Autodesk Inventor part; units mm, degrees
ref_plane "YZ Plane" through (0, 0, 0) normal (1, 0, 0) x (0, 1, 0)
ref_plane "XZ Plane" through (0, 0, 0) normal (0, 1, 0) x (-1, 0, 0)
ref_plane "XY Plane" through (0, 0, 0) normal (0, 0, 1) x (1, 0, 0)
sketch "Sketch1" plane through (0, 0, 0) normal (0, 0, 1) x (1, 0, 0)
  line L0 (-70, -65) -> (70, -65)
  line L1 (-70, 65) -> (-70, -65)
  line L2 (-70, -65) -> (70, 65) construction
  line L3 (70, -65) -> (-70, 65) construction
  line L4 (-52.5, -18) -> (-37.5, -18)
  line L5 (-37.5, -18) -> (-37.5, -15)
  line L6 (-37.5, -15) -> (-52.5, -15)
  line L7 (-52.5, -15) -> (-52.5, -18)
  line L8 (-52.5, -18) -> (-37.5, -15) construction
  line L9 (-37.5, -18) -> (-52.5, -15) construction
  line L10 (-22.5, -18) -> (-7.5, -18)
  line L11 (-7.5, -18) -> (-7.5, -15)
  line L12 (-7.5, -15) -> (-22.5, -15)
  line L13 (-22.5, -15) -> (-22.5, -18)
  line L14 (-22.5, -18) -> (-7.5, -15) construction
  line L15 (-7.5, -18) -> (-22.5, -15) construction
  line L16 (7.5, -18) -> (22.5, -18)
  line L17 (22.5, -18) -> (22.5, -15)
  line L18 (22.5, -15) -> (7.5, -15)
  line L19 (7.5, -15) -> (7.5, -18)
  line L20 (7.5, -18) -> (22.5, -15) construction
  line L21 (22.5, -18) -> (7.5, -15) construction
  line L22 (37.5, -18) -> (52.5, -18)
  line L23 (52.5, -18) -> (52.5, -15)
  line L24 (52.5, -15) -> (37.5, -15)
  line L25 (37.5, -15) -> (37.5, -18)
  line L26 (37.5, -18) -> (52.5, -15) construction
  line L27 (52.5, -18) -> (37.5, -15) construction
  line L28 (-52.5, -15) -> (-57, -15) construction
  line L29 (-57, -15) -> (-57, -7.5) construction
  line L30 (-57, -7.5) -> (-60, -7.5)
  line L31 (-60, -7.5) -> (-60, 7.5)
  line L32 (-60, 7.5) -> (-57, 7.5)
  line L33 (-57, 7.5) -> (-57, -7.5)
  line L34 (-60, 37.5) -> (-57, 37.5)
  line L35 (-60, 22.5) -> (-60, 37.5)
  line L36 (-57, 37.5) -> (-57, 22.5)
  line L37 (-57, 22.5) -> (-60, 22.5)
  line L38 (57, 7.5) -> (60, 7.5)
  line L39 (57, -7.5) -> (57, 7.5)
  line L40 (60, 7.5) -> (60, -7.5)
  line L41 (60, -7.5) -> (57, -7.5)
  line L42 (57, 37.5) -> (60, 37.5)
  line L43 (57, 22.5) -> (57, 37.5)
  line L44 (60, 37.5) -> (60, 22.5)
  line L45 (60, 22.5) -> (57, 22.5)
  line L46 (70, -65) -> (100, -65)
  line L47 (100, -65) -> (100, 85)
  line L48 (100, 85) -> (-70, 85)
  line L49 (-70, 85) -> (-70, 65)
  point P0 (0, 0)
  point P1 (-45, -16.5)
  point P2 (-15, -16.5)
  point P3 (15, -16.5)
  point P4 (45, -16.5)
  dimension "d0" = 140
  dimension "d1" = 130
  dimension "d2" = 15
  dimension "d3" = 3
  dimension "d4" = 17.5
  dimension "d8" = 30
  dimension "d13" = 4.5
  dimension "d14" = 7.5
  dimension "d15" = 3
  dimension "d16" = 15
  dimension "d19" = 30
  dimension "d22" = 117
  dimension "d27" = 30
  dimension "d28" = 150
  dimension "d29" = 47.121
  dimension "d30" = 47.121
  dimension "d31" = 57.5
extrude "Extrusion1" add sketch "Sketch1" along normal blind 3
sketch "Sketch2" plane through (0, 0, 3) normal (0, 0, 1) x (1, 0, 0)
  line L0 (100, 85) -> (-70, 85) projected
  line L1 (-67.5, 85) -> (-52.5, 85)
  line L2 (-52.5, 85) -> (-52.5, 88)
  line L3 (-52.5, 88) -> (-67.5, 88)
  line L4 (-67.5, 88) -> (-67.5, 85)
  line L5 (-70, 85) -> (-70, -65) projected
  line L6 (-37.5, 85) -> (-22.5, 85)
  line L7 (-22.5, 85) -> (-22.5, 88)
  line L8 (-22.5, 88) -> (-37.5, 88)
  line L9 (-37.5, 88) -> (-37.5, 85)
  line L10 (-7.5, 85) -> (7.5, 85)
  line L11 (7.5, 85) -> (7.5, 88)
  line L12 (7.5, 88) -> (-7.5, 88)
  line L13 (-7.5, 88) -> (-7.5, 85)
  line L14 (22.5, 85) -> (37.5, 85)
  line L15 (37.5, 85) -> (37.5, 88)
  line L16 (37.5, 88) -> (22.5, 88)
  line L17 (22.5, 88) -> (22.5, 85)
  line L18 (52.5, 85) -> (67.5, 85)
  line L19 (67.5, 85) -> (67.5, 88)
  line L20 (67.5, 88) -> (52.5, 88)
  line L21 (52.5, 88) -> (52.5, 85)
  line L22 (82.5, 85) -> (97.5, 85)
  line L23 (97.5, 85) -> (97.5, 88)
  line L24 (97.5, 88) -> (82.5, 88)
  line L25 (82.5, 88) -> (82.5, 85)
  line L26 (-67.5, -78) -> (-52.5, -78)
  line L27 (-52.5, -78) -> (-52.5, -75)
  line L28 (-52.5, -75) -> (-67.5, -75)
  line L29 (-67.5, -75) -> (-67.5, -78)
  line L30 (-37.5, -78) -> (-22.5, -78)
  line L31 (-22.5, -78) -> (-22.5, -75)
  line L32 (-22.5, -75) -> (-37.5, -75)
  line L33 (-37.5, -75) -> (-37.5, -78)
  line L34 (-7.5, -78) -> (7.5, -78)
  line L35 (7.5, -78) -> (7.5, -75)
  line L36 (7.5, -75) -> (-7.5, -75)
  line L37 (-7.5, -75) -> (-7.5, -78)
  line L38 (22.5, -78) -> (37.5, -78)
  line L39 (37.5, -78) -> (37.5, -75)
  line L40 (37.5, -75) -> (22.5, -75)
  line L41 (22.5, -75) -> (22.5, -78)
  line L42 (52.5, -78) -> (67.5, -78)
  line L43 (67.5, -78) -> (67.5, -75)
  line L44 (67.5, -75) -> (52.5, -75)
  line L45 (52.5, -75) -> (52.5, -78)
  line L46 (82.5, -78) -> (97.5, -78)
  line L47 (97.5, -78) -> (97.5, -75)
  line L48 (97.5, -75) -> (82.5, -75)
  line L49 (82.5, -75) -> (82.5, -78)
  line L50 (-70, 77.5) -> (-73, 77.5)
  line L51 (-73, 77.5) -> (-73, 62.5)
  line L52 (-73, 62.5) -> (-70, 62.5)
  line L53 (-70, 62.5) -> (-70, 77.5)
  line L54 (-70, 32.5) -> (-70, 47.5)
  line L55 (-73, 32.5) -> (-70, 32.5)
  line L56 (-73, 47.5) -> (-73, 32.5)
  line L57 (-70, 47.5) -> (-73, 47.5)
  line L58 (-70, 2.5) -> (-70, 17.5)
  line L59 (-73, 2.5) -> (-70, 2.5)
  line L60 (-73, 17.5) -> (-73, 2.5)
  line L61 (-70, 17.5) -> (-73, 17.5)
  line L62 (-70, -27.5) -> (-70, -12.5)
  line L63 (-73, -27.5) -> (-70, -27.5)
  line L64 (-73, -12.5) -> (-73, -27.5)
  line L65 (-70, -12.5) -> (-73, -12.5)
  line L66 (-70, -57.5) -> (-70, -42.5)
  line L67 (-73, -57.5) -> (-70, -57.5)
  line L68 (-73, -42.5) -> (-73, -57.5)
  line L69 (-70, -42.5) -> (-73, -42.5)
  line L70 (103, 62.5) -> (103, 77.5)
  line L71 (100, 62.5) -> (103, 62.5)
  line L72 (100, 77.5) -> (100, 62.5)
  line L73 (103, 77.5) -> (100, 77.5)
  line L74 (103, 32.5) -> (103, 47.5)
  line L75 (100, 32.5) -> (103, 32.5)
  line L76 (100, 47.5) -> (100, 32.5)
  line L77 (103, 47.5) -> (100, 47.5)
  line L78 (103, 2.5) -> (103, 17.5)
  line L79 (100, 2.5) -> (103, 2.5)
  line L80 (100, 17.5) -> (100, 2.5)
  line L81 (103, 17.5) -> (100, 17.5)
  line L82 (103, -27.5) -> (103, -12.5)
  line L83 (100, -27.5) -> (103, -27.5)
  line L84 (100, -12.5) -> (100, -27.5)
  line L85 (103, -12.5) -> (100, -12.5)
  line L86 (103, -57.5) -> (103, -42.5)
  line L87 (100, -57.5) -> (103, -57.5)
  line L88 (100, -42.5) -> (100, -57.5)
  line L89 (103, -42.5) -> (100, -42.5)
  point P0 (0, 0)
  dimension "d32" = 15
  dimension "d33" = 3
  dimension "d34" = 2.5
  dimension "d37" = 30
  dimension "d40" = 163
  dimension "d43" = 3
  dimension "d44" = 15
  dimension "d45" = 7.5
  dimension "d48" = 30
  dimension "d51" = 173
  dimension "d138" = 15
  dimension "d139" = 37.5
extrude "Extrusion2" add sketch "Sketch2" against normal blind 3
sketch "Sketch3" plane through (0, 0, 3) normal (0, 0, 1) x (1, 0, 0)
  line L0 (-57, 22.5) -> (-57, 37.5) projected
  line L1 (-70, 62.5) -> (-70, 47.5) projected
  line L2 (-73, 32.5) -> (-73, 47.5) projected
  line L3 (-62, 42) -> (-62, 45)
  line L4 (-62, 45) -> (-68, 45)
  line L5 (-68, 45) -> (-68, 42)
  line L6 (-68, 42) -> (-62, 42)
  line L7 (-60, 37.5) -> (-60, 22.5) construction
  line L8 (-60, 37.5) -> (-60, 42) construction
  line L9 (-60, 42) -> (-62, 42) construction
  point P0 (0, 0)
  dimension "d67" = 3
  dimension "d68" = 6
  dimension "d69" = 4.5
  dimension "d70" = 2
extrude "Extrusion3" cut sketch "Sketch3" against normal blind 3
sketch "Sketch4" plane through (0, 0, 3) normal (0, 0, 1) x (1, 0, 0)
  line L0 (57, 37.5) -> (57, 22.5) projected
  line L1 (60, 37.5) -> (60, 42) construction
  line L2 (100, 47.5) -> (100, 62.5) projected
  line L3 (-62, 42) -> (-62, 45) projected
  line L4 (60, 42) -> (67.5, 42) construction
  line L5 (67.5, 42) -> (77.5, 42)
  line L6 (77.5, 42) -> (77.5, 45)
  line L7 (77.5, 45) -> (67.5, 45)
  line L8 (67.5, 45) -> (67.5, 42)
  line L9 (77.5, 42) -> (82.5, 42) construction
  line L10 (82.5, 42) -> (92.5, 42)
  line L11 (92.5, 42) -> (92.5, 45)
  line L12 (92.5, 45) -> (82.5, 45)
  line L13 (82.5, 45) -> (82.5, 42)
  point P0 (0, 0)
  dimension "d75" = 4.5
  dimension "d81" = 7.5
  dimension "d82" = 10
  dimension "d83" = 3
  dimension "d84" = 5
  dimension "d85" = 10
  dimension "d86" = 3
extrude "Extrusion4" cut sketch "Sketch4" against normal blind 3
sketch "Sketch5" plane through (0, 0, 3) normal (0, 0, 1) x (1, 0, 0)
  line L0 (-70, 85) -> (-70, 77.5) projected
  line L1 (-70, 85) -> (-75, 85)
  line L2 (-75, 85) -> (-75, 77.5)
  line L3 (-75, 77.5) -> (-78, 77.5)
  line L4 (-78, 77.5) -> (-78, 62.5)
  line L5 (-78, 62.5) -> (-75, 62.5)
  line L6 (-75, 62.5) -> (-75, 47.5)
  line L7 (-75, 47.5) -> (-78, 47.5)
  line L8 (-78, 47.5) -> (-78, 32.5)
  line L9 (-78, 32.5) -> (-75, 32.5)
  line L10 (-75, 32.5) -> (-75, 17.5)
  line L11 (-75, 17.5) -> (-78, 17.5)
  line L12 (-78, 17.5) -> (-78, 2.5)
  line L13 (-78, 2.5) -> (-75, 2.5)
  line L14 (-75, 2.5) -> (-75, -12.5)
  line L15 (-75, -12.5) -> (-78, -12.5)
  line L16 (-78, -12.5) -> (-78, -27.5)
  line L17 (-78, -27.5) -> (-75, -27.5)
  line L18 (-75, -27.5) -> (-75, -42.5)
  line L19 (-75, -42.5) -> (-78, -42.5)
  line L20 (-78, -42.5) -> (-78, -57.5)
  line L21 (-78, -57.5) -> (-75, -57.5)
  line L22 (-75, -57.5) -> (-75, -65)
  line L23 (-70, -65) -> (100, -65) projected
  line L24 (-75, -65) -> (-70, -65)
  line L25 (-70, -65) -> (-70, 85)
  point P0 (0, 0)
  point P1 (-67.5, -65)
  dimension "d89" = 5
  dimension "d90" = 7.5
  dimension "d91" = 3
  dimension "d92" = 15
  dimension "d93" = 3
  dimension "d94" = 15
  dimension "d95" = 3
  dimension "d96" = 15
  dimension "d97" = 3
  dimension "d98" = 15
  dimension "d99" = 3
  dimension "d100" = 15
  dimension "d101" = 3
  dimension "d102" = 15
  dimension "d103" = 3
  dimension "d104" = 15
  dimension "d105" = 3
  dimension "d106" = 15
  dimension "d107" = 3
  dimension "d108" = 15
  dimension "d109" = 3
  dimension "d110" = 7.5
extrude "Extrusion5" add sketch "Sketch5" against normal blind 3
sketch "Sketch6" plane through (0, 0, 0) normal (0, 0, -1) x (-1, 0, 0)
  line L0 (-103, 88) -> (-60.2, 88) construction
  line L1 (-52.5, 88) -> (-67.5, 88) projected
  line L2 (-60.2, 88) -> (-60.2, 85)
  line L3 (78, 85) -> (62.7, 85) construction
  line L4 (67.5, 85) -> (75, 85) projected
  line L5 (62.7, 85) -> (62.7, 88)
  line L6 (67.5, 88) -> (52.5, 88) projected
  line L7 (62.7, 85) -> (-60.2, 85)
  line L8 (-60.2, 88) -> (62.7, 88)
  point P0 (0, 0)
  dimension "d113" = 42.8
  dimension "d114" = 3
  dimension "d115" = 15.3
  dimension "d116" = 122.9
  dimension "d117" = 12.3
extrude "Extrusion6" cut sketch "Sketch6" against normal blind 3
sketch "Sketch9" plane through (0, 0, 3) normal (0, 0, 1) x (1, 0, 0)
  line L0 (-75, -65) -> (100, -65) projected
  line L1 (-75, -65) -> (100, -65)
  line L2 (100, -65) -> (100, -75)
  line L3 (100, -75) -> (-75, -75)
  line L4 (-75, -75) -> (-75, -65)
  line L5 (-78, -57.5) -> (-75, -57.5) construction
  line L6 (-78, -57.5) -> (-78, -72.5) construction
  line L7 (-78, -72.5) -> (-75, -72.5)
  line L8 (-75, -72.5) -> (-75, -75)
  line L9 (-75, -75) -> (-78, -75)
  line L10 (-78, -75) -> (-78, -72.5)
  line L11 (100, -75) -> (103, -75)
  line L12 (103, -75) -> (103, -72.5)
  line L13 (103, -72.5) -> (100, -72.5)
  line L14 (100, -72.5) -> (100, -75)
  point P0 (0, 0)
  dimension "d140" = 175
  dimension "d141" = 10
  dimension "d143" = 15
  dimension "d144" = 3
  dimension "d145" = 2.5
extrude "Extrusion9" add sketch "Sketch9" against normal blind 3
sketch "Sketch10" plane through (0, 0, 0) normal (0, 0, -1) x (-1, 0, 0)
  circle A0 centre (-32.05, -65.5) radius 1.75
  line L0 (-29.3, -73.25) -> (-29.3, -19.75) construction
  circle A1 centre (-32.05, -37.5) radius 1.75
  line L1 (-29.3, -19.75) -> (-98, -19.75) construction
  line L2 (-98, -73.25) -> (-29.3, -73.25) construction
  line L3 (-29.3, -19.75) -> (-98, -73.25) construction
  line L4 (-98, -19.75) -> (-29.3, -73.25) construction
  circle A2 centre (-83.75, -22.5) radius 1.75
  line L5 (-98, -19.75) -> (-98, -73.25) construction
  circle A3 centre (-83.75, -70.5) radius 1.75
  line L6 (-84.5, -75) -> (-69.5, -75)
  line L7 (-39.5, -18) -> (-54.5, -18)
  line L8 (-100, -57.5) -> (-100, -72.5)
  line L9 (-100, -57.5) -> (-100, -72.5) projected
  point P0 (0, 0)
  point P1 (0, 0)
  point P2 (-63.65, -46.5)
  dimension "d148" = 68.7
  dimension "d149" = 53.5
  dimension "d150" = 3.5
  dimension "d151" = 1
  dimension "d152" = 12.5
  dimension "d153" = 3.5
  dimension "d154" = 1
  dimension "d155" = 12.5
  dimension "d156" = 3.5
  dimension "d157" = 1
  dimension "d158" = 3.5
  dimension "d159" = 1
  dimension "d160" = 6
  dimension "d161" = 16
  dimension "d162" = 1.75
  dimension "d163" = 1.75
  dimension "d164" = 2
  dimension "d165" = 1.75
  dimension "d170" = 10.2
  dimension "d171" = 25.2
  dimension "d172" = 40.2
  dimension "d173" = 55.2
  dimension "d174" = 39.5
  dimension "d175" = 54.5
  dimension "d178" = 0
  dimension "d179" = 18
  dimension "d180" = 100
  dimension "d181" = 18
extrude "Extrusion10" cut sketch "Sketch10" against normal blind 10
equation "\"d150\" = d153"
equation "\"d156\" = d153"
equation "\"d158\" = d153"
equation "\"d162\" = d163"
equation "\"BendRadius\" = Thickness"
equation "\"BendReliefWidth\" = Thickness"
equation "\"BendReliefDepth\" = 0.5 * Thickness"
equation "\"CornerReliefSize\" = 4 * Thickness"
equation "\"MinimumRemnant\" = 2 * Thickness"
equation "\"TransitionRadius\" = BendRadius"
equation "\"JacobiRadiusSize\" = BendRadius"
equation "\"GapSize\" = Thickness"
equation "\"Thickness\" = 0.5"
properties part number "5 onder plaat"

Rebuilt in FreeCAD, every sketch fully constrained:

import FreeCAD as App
import Part
import Sketcher
from FreeCAD import Vector


def add_polygon(sketch, points):
    """Adds a closed chain of lines whose ends are joined by coincident constraints."""
    first, n = sketch.GeometryCount, len(points)
    for a, b in zip(points, points[1:] + points[:1]):
        sketch.addGeometry(Part.LineSegment(App.Vector(*a, 0), App.Vector(*b, 0)), False)
    for i in range(n):
        sketch.addConstraint(Sketcher.Constraint("Coincident", first + i, 2, first + (i + 1) % n, 1))

doc = App.newDocument("Part")
params = doc.addObject("Spreadsheet::Sheet", "Params")
for row, (alias, value) in enumerate([
    ("sketch1_width", "15 mm"),
    ("sketch1_width2", "3 mm"),
    ("sketch1_height", "150 mm"),
    ("sketch1_width3", "170 mm"),
    ("pad1_length", "3 mm"),
    ("sketch2_width", "3 mm"),
    ("sketch2_width2", "15 mm"),
    ("pad2_length", "3 mm"),
    ("sketch3_width", "6 mm"),
    ("sketch3_height", "3 mm"),
    ("pocket1_length", "3 mm"),
    ("sketch4_width", "10 mm"),
    ("sketch4_height", "3 mm"),
    ("pocket2_length", "3 mm"),
    ("sketch5_width", "5 mm"),
    ("sketch5_width2", "3 mm"),
    ("sketch5_height", "15 mm"),
    ("sketch5_height2", "7.5 mm"),
    ("pad3_length", "3 mm"),
    ("sketch6_height", "3 mm"),
    ("sketch6_width", "122.9 mm"),
    ("pocket3_length", "3 mm"),
    ("sketch7_width", "175 mm"),
    ("sketch7_width2", "3 mm"),
    ("sketch7_height", "2.5 mm"),
    ("pad4_length", "3 mm"),
    ("sketch8_diameter", "3.5 mm"),
    ("pocket4_length", "10 mm"),
], start=1):
    params.set(f"A{row}", alias)
    params.set(f"B{row}", "=" + value)
    params.setAlias(f"B{row}", alias)

body = doc.addObject("PartDesign::Body", "Body")
body.AllowCompound = True

# Sketch on XY plane
sketch1 = body.newObject("Sketcher::SketchObject", "Sketch")
sketch1.AttachmentSupport = (doc.getObject("XY_Plane"), [""])
sketch1.MapMode = "FlatFace"
add_polygon(sketch1, [(-70, 85), (-70, -65), (100, -65), (100, 85)])  # lines 0-3
add_polygon(sketch1, [(-37.5, -18), (-52.5, -18), (-52.5, -15), (-37.5, -15)])  # lines 4-7
add_polygon(sketch1, [(-57, 7.5), (-57, -7.5), (-60, -7.5), (-60, 7.5)])  # lines 8-11
add_polygon(sketch1, [(-7.5, -18), (-22.5, -18), (-22.5, -15), (-7.5, -15)])  # lines 12-15
add_polygon(sketch1, [(22.5, -18), (7.5, -18), (7.5, -15), (22.5, -15)])  # lines 16-19
add_polygon(sketch1, [(52.5, -18), (37.5, -18), (37.5, -15), (52.5, -15)])  # lines 20-23
add_polygon(sketch1, [(57, -7.5), (57, 7.5), (60, 7.5), (60, -7.5)])  # lines 24-27
add_polygon(sketch1, [(-60, 22.5), (-60, 37.5), (-57, 37.5), (-57, 22.5)])  # lines 28-31
add_polygon(sketch1, [(57, 22.5), (57, 37.5), (60, 37.5), (60, 22.5)])  # lines 32-35
sketch1.addConstraint([
    Sketcher.Constraint("Vertical", 0),
    Sketcher.Constraint("Horizontal", 1),
    Sketcher.Constraint("Vertical", 2),
    Sketcher.Constraint("Horizontal", 3),
    Sketcher.Constraint("Horizontal", 4),
    Sketcher.Constraint("Vertical", 5),
    Sketcher.Constraint("Horizontal", 6),
    Sketcher.Constraint("Vertical", 7),
    Sketcher.Constraint("Vertical", 8),
    Sketcher.Constraint("Horizontal", 9),
    Sketcher.Constraint("Vertical", 10),
    Sketcher.Constraint("Horizontal", 11),
    Sketcher.Constraint("Horizontal", 12),
    Sketcher.Constraint("Vertical", 13),
    Sketcher.Constraint("Horizontal", 14),
    Sketcher.Constraint("Vertical", 15),
    Sketcher.Constraint("Horizontal", 16),
    Sketcher.Constraint("Vertical", 17),
    Sketcher.Constraint("Horizontal", 18),
    Sketcher.Constraint("Vertical", 19),
    Sketcher.Constraint("Horizontal", 20),
    Sketcher.Constraint("Vertical", 21),
    Sketcher.Constraint("Horizontal", 22),
    Sketcher.Constraint("Vertical", 23),
    Sketcher.Constraint("Vertical", 24),
    Sketcher.Constraint("Horizontal", 25),
    Sketcher.Constraint("Vertical", 26),
    Sketcher.Constraint("Horizontal", 27),
    Sketcher.Constraint("Vertical", 28),
    Sketcher.Constraint("Horizontal", 29),
    Sketcher.Constraint("Vertical", 30),
    Sketcher.Constraint("Horizontal", 31),
    Sketcher.Constraint("Vertical", 32),
    Sketcher.Constraint("Horizontal", 33),
    Sketcher.Constraint("Vertical", 34),
    Sketcher.Constraint("Horizontal", 35),
    Sketcher.Constraint("Symmetric", 8, 2, 24, 2, -1, 1),
    Sketcher.Constraint("Symmetric", 10, 2, 26, 2, -1, 1),
    Sketcher.Constraint("Symmetric", 15, 2, 16, 2, -2),
    Sketcher.Constraint("Symmetric", 13, 2, 18, 2, -2),
    Sketcher.Constraint("Symmetric", 7, 2, 20, 2, -2),
    Sketcher.Constraint("Symmetric", 5, 2, 22, 2, -2),
    Sketcher.Constraint("Symmetric", 29, 2, 32, 2, -2),
    Sketcher.Constraint("Symmetric", 31, 2, 34, 2, -2),
    Sketcher.Constraint("Horizontal", 7, 2, 12, 2),
    Sketcher.Constraint("Horizontal", 6, 2, 13, 2),
    Sketcher.Constraint("Horizontal", 11, 2, 24, 2),
    Sketcher.Constraint("Vertical", 10, 2, 28, 2),
    Sketcher.Constraint("Vertical", 11, 2, 29, 2),
    Sketcher.Constraint("Equal", 6, 12),
    Sketcher.Constraint("Equal", 35, 5),
    Sketcher.Constraint("Equal", 22, 8),
    Sketcher.Constraint("Equal", 26, 28),
    Sketcher.Constraint("DistanceX", 4, 2, 4, 1, 15.0),
    Sketcher.Constraint("DistanceX", 9, 2, 9, 1, 3.0),
    Sketcher.Constraint("DistanceY", 0, 2, 0, 1, 150.0),
    Sketcher.Constraint("DistanceY", 5, 2, -1, 1, 15.0),
    Sketcher.Constraint("DistanceX", 7, 2, 12, 2, 15.0),
    Sketcher.Constraint("DistanceX", 15, 2, 16, 2, 15.0),
    Sketcher.Constraint("DistanceY", 10, 2, 28, 2, 30.0),
    Sketcher.Constraint("DistanceX", 3, 2, 28, 2, 10.0),
    Sketcher.Constraint("DistanceX", 0, 2, 4, 2, 17.5),
    Sketcher.Constraint("DistanceY", 0, 2, 8, 2, 57.5),
    Sketcher.Constraint("DistanceX", 1, 1, 1, 2, 170.0),
])
sketch1.setExpression("Constraints[89]", "Params.sketch1_width")
sketch1.setExpression("Constraints[90]", "Params.sketch1_width2")
sketch1.setExpression("Constraints[91]", "Params.sketch1_height")
sketch1.setExpression("Constraints[99]", "Params.sketch1_width3")
pad1 = body.newObject("PartDesign::Pad", "Pad")
pad1.Profile = sketch1
pad1.setExpression("Length", "Params.pad1_length")

# Sketch on XY plane
sketch2 = body.newObject("Sketcher::SketchObject", "Sketch001")
sketch2.AttachmentSupport = (doc.getObject("XY_Plane"), [""])
sketch2.MapMode = "FlatFace"
sketch2.AttachmentOffset = App.Placement(Vector(0, 0, 3), App.Rotation())
add_polygon(sketch2, [(-70, -57.5), (-70, -42.5), (-73, -42.5), (-73, -57.5)])  # lines 0-3
add_polygon(sketch2, [(-70, -27.5), (-70, -12.5), (-73, -12.5), (-73, -27.5)])  # lines 4-7
add_polygon(sketch2, [(-70, 2.5), (-70, 17.5), (-73, 17.5), (-73, 2.5)])  # lines 8-11
add_polygon(sketch2, [(-70, 32.5), (-70, 47.5), (-73, 47.5), (-73, 32.5)])  # lines 12-15
add_polygon(sketch2, [(-70, 62.5), (-70, 77.5), (-73, 77.5), (-73, 62.5)])  # lines 16-19
add_polygon(sketch2, [(-67.5, 85), (-52.5, 85), (-52.5, 88), (-67.5, 88)])  # lines 20-23
add_polygon(sketch2, [(-37.5, 85), (-22.5, 85), (-22.5, 88), (-37.5, 88)])  # lines 24-27
add_polygon(sketch2, [(-7.5, 85), (7.5, 85), (7.5, 88), (-7.5, 88)])  # lines 28-31
add_polygon(sketch2, [(22.5, 85), (37.5, 85), (37.5, 88), (22.5, 88)])  # lines 32-35
add_polygon(sketch2, [(52.5, 85), (67.5, 85), (67.5, 88), (52.5, 88)])  # lines 36-39
add_polygon(sketch2, [(82.5, 85), (97.5, 85), (97.5, 88), (82.5, 88)])  # lines 40-43
add_polygon(sketch2, [(-67.5, -75), (-67.5, -78), (-52.5, -78), (-52.5, -75)])  # lines 44-47
add_polygon(sketch2, [(-37.5, -75), (-37.5, -78), (-22.5, -78), (-22.5, -75)])  # lines 48-51
add_polygon(sketch2, [(-7.5, -75), (-7.5, -78), (7.5, -78), (7.5, -75)])  # lines 52-55
add_polygon(sketch2, [(22.5, -75), (22.5, -78), (37.5, -78), (37.5, -75)])  # lines 56-59
add_polygon(sketch2, [(52.5, -75), (52.5, -78), (67.5, -78), (67.5, -75)])  # lines 60-63
add_polygon(sketch2, [(82.5, -75), (82.5, -78), (97.5, -78), (97.5, -75)])  # lines 64-67
add_polygon(sketch2, [(100, 62.5), (103, 62.5), (103, 77.5), (100, 77.5)])  # lines 68-71
add_polygon(sketch2, [(100, 32.5), (103, 32.5), (103, 47.5), (100, 47.5)])  # lines 72-75
add_polygon(sketch2, [(100, 2.5), (103, 2.5), (103, 17.5), (100, 17.5)])  # lines 76-79
add_polygon(sketch2, [(100, -27.5), (103, -27.5), (103, -12.5), (100, -12.5)])  # lines 80-83
add_polygon(sketch2, [(100, -57.5), (103, -57.5), (103, -42.5), (100, -42.5)])  # lines 84-87
sketch2.addConstraint([
    Sketcher.Constraint("Vertical", 0),
    Sketcher.Constraint("Horizontal", 1),
    Sketcher.Constraint("Vertical", 2),
    Sketcher.Constraint("Horizontal", 3),
    Sketcher.Constraint("Vertical", 4),
    Sketcher.Constraint("Horizontal", 5),
    Sketcher.Constraint("Vertical", 6),
    Sketcher.Constraint("Horizontal", 7),
    Sketcher.Constraint("Vertical", 8),
    Sketcher.Constraint("Horizontal", 9),
    Sketcher.Constraint("Vertical", 10),
    Sketcher.Constraint("Horizontal", 11),
    Sketcher.Constraint("Vertical", 12),
    Sketcher.Constraint("Horizontal", 13),
    Sketcher.Constraint("Vertical", 14),
    Sketcher.Constraint("Horizontal", 15),
    Sketcher.Constraint("Vertical", 16),
    Sketcher.Constraint("Horizontal", 17),
    Sketcher.Constraint("Vertical", 18),
    Sketcher.Constraint("Horizontal", 19),
    Sketcher.Constraint("Horizontal", 20),
    Sketcher.Constraint("Vertical", 21),
    Sketcher.Constraint("Horizontal", 22),
    Sketcher.Constraint("Vertical", 23),
    Sketcher.Constraint("Horizontal", 24),
    Sketcher.Constraint("Vertical", 25),
    Sketcher.Constraint("Horizontal", 26),
    Sketcher.Constraint("Vertical", 27),
    Sketcher.Constraint("Horizontal", 28),
    Sketcher.Constraint("Vertical", 29),
    Sketcher.Constraint("Horizontal", 30),
    Sketcher.Constraint("Vertical", 31),
    Sketcher.Constraint("Horizontal", 32),
    Sketcher.Constraint("Vertical", 33),
    Sketcher.Constraint("Horizontal", 34),
    Sketcher.Constraint("Vertical", 35),
    Sketcher.Constraint("Horizontal", 36),
    Sketcher.Constraint("Vertical", 37),
    Sketcher.Constraint("Horizontal", 38),
    Sketcher.Constraint("Vertical", 39),
    Sketcher.Constraint("Horizontal", 40),
    Sketcher.Constraint("Vertical", 41),
    Sketcher.Constraint("Horizontal", 42),
    Sketcher.Constraint("Vertical", 43),
    Sketcher.Constraint("Vertical", 44),
    Sketcher.Constraint("Horizontal", 45),
    Sketcher.Constraint("Vertical", 46),
    Sketcher.Constraint("Horizontal", 47),
    Sketcher.Constraint("Vertical", 48),
    Sketcher.Constraint("Horizontal", 49),
    Sketcher.Constraint("Vertical", 50),
    Sketcher.Constraint("Horizontal", 51),
    Sketcher.Constraint("Vertical", 52),
    Sketcher.Constraint("Horizontal", 53),
    Sketcher.Constraint("Vertical", 54),
    Sketcher.Constraint("Horizontal", 55),
    Sketcher.Constraint("Vertical", 56),
    Sketcher.Constraint("Horizontal", 57),
    Sketcher.Constraint("Vertical", 58),
    Sketcher.Constraint("Horizontal", 59),
    Sketcher.Constraint("Vertical", 60),
    Sketcher.Constraint("Horizontal", 61),
    Sketcher.Constraint("Vertical", 62),
    Sketcher.Constraint("Horizontal", 63),
    Sketcher.Constraint("Vertical", 64),
    Sketcher.Constraint("Horizontal", 65),
    Sketcher.Constraint("Vertical", 66),
    Sketcher.Constraint("Horizontal", 67),
    Sketcher.Constraint("Horizontal", 68),
    Sketcher.Constraint("Vertical", 69),
    Sketcher.Constraint("Horizontal", 70),
    Sketcher.Constraint("Vertical", 71),
    Sketcher.Constraint("Horizontal", 72),
    Sketcher.Constraint("Vertical", 73),
    Sketcher.Constraint("Horizontal", 74),
    Sketcher.Constraint("Vertical", 75),
    Sketcher.Constraint("Horizontal", 76),
    Sketcher.Constraint("Vertical", 77),
    Sketcher.Constraint("Horizontal", 78),
    Sketcher.Constraint("Vertical", 79),
    Sketcher.Constraint("Horizontal", 80),
    Sketcher.Constraint("Vertical", 81),
    Sketcher.Constraint("Horizontal", 82),
    Sketcher.Constraint("Vertical", 83),
    Sketcher.Constraint("Horizontal", 84),
    Sketcher.Constraint("Vertical", 85),
    Sketcher.Constraint("Horizontal", 86),
    Sketcher.Constraint("Vertical", 87),
    Sketcher.Constraint("Symmetric", 27, 2, 32, 2, -2),
    Sketcher.Constraint("Symmetric", 25, 2, 34, 2, -2),
    Sketcher.Constraint("Symmetric", 23, 2, 36, 2, -2),
    Sketcher.Constraint("Symmetric", 21, 2, 38, 2, -2),
    Sketcher.Constraint("Symmetric", 49, 2, 56, 2, -2),
    Sketcher.Constraint("Symmetric", 51, 2, 58, 2, -2),
    Sketcher.Constraint("Symmetric", 45, 2, 60, 2, -2),
    Sketcher.Constraint("Symmetric", 47, 2, 62, 2, -2),
    Sketcher.Constraint("Horizontal", 23, 2, 24, 2),
    Sketcher.Constraint("Horizontal", 22, 2, 25, 2),
    Sketcher.Constraint("Horizontal", 27, 2, 28, 2),
    Sketcher.Constraint("Horizontal", 26, 2, 29, 2),
    Sketcher.Constraint("Horizontal", 39, 2, 40, 2),
    Sketcher.Constraint("Horizontal", 38, 2, 41, 2),
    Sketcher.Constraint("Horizontal", 45, 2, 48, 2),
    Sketcher.Constraint("Horizontal", 47, 2, 50, 2),
    Sketcher.Constraint("Horizontal", 49, 2, 52, 2),
    Sketcher.Constraint("Horizontal", 51, 2, 54, 2),
    Sketcher.Constraint("Horizontal", 61, 2, 64, 2),
    Sketcher.Constraint("Horizontal", 63, 2, 66, 2),
    Sketcher.Constraint("Horizontal", 19, 2, 68, 2),
    Sketcher.Constraint("Horizontal", 17, 2, 69, 2),
    Sketcher.Constraint("Horizontal", 15, 2, 72, 2),
    Sketcher.Constraint("Horizontal", 13, 2, 73, 2),
    Sketcher.Constraint("Horizontal", 11, 2, 76, 2),
    Sketcher.Constraint("Horizontal", 9, 2, 77, 2),
    Sketcher.Constraint("Horizontal", 7, 2, 80, 2),
    Sketcher.Constraint("Horizontal", 5, 2, 81, 2),
    Sketcher.Constraint("Horizontal", 3, 2, 84, 2),
    Sketcher.Constraint("Horizontal", 1, 2, 85, 2),
    Sketcher.Constraint("Vertical", 3, 2, 4, 2),
    Sketcher.Constraint("Vertical", 2, 2, 5, 2),
    Sketcher.Constraint("Vertical", 7, 2, 8, 2),
    Sketcher.Constraint("Vertical", 6, 2, 9, 2),
    Sketcher.Constraint("Vertical", 11, 2, 12, 2),
    Sketcher.Constraint("Vertical", 10, 2, 13, 2),
    Sketcher.Constraint("Vertical", 15, 2, 16, 2),
    Sketcher.Constraint("Vertical", 14, 2, 17, 2),
    Sketcher.Constraint("Vertical", 23, 2, 44, 2),
    Sketcher.Constraint("Vertical", 21, 2, 45, 2),
    Sketcher.Constraint("Vertical", 27, 2, 48, 2),
    Sketcher.Constraint("Vertical", 25, 2, 49, 2),
    Sketcher.Constraint("Vertical", 31, 2, 52, 2),
    Sketcher.Constraint("Vertical", 29, 2, 53, 2),
    Sketcher.Constraint("Vertical", 43, 2, 64, 2),
    Sketcher.Constraint("Vertical", 41, 2, 65, 2),
    Sketcher.Constraint("Vertical", 69, 2, 72, 2),
    Sketcher.Constraint("Vertical", 71, 2, 74, 2),
    Sketcher.Constraint("Vertical", 73, 2, 76, 2),
    Sketcher.Constraint("Vertical", 75, 2, 78, 2),
    Sketcher.Constraint("Vertical", 77, 2, 80, 2),
    Sketcher.Constraint("Vertical", 79, 2, 82, 2),
    Sketcher.Constraint("Vertical", 81, 2, 84, 2),
    Sketcher.Constraint("Vertical", 83, 2, 86, 2),
    Sketcher.Constraint("Equal", 22, 24),
    Sketcher.Constraint("Equal", 26, 28),
    Sketcher.Constraint("Equal", 38, 40),
    Sketcher.Constraint("Equal", 19, 68),
    Sketcher.Constraint("Equal", 67, 0),
    Sketcher.Constraint("Equal", 2, 4),
    Sketcher.Constraint("Equal", 6, 8),
    Sketcher.Constraint("Equal", 10, 12),
    Sketcher.Constraint("Equal", 14, 16),
    Sketcher.Constraint("Equal", 86, 21),
    Sketcher.Constraint("Equal", 43, 44),
    Sketcher.Constraint("DistanceX", 1, 2, 1, 1, 3.0),
    Sketcher.Constraint("DistanceX", 20, 1, 20, 2, 15.0),
    Sketcher.Constraint("DistanceY", -1, 1, 10, 2, 2.5),
    Sketcher.Constraint("DistanceX", 26, 2, -1, 1, 37.5),
    Sketcher.Constraint("DistanceX", -1, 1, 28, 2, 7.5),
    Sketcher.Constraint("DistanceX", 0, 2, -1, 1, 70.0),
    Sketcher.Constraint("DistanceY", -1, 1, 20, 2, 85.0),
    Sketcher.Constraint("DistanceY", 44, 2, -1, 1, 78.0),
    Sketcher.Constraint("DistanceX", -1, 1, 68, 2, 103.0),
    Sketcher.Constraint("DistanceY", 0, 2, -1, 1, 42.5),
    Sketcher.Constraint("DistanceY", 4, 2, -1, 1, 12.5),
    Sketcher.Constraint("DistanceY", -1, 1, 12, 2, 47.5),
    Sketcher.Constraint("DistanceY", -1, 1, 16, 2, 77.5),
    Sketcher.Constraint("DistanceX", 20, 2, -1, 1, 52.5),
    Sketcher.Constraint("DistanceX", -1, 1, 40, 2, 97.5),
])
sketch2.setExpression("Constraints[241]", "Params.sketch2_width")
sketch2.setExpression("Constraints[242]", "Params.sketch2_width2")
pad2 = body.newObject("PartDesign::Pad", "Pad001")
pad2.Profile = sketch2
pad2.setExpression("Length", "Params.pad2_length")
pad2.Reversed = True

# Sketch on XY plane
sketch3 = body.newObject("Sketcher::SketchObject", "Sketch002")
sketch3.AttachmentSupport = (doc.getObject("XY_Plane"), [""])
sketch3.MapMode = "FlatFace"
sketch3.AttachmentOffset = App.Placement(Vector(0, 0, 3), App.Rotation())
add_polygon(sketch3, [(-68, 42), (-62, 42), (-62, 45), (-68, 45)])  # lines 0-3
sketch3.addConstraint([
    Sketcher.Constraint("Horizontal", 0),
    Sketcher.Constraint("Vertical", 1),
    Sketcher.Constraint("Horizontal", 2),
    Sketcher.Constraint("Vertical", 3),
    Sketcher.Constraint("DistanceX", 0, 1, 0, 2, 6.0),
    Sketcher.Constraint("DistanceY", 1, 1, 1, 2, 3.0),
    Sketcher.Constraint("DistanceX", 0, 2, -1, 1, 62.0),
    Sketcher.Constraint("DistanceY", -1, 1, 0, 2, 42.0),
])
sketch3.setExpression("Constraints[8]", "Params.sketch3_width")
sketch3.setExpression("Constraints[9]", "Params.sketch3_height")
pocket1 = body.newObject("PartDesign::Pocket", "Pocket")
pocket1.Profile = sketch3
pocket1.setExpression("Length", "Params.pocket1_length")

# Sketch on XY plane
sketch4 = body.newObject("Sketcher::SketchObject", "Sketch003")
sketch4.AttachmentSupport = (doc.getObject("XY_Plane"), [""])
sketch4.MapMode = "FlatFace"
sketch4.AttachmentOffset = App.Placement(Vector(0, 0, 3), App.Rotation())
add_polygon(sketch4, [(67.5, 45), (67.5, 42), (77.5, 42), (77.5, 45)])  # lines 0-3
add_polygon(sketch4, [(82.5, 45), (82.5, 42), (92.5, 42), (92.5, 45)])  # lines 4-7
sketch4.addConstraint([
    Sketcher.Constraint("Vertical", 0),
    Sketcher.Constraint("Horizontal", 1),
    Sketcher.Constraint("Vertical", 2),
    Sketcher.Constraint("Horizontal", 3),
    Sketcher.Constraint("Vertical", 4),
    Sketcher.Constraint("Horizontal", 5),
    Sketcher.Constraint("Vertical", 6),
    Sketcher.Constraint("Horizontal", 7),
    Sketcher.Constraint("Horizontal", 1, 2, 4, 2),
    Sketcher.Constraint("Horizontal", 3, 2, 6, 2),
    Sketcher.Constraint("Equal", 3, 5),
    Sketcher.Constraint("DistanceX", 1, 1, 1, 2, 10.0),
    Sketcher.Constraint("DistanceY", 0, 2, 0, 1, 3.0),
    Sketcher.Constraint("DistanceX", 1, 2, 4, 2, 5.0),
    Sketcher.Constraint("DistanceY", -1, 1, 0, 2, 42.0),
    Sketcher.Constraint("DistanceX", -1, 1, 0, 2, 67.5),
])
sketch4.setExpression("Constraints[19]", "Params.sketch4_width")
sketch4.setExpression("Constraints[20]", "Params.sketch4_height")
pocket2 = body.newObject("PartDesign::Pocket", "Pocket001")
pocket2.Profile = sketch4
pocket2.setExpression("Length", "Params.pocket2_length")

# Sketch on XY plane
sketch5 = body.newObject("Sketcher::SketchObject", "Sketch004")
sketch5.AttachmentSupport = (doc.getObject("XY_Plane"), [""])
sketch5.MapMode = "FlatFace"
sketch5.AttachmentOffset = App.Placement(Vector(0, 0, 3), App.Rotation())
add_polygon(sketch5, [(-70, -65), (-70, 85), (-75, 85), (-75, 77.5), (-78, 77.5), (-78, 62.5), (-75, 62.5), (-75, 47.5), (-78, 47.5), (-78, 32.5), (-75, 32.5), (-75, 17.5), (-78, 17.5), (-78, 2.5), (-75, 2.5), (-75, -12.5), (-78, -12.5), (-78, -27.5), (-75, -27.5), (-75, -42.5), (-78, -42.5), (-78, -57.5), (-75, -57.5), (-75, -65)])  # lines 0-23
sketch5.addConstraint([
    Sketcher.Constraint("Vertical", 0),
    Sketcher.Constraint("Horizontal", 1),
    Sketcher.Constraint("Vertical", 2),
    Sketcher.Constraint("Horizontal", 3),
    Sketcher.Constraint("Vertical", 4),
    Sketcher.Constraint("Horizontal", 5),
    Sketcher.Constraint("Vertical", 6),
    Sketcher.Constraint("Horizontal", 7),
    Sketcher.Constraint("Vertical", 8),
    Sketcher.Constraint("Horizontal", 9),
    Sketcher.Constraint("Vertical", 10),
    Sketcher.Constraint("Horizontal", 11),
    Sketcher.Constraint("Vertical", 12),
    Sketcher.Constraint("Horizontal", 13),
    Sketcher.Constraint("Vertical", 14),
    Sketcher.Constraint("Horizontal", 15),
    Sketcher.Constraint("Vertical", 16),
    Sketcher.Constraint("Horizontal", 17),
    Sketcher.Constraint("Vertical", 18),
    Sketcher.Constraint("Horizontal", 19),
    Sketcher.Constraint("Vertical", 20),
    Sketcher.Constraint("Horizontal", 21),
    Sketcher.Constraint("Vertical", 22),
    Sketcher.Constraint("Horizontal", 23),
    Sketcher.Constraint("Vertical", 2, 2, 5, 2),
    Sketcher.Constraint("Vertical", 4, 2, 7, 2),
    Sketcher.Constraint("Vertical", 6, 2, 9, 2),
    Sketcher.Constraint("Vertical", 8, 2, 11, 2),
    Sketcher.Constraint("Vertical", 10, 2, 13, 2),
    Sketcher.Constraint("Vertical", 12, 2, 15, 2),
    Sketcher.Constraint("Vertical", 14, 2, 17, 2),
    Sketcher.Constraint("Vertical", 16, 2, 19, 2),
    Sketcher.Constraint("Vertical", 18, 2, 21, 2),
    Sketcher.Constraint("Equal", 4, 6),
    Sketcher.Constraint("Equal", 6, 8),
    Sketcher.Constraint("Equal", 8, 10),
    Sketcher.Constraint("Equal", 10, 12),
    Sketcher.Constraint("Equal", 12, 14),
    Sketcher.Constraint("Equal", 14, 16),
    Sketcher.Constraint("Equal", 16, 18),
    Sketcher.Constraint("Equal", 18, 20),
    Sketcher.Constraint("Equal", 2, 22),
    Sketcher.Constraint("DistanceX", 1, 2, 1, 1, 5.0),
    Sketcher.Constraint("DistanceX", 3, 2, 3, 1, 3.0),
    Sketcher.Constraint("DistanceY", 4, 2, 4, 1, 15.0),
    Sketcher.Constraint("DistanceY", 2, 2, 2, 1, 7.5),
    Sketcher.Constraint("DistanceX", 0, 2, -1, 1, 70.0),
    Sketcher.Constraint("DistanceY", -1, 1, 0, 2, 85.0),
])
sketch5.setExpression("Constraints[66]", "Params.sketch5_width")
sketch5.setExpression("Constraints[67]", "Params.sketch5_width2")
sketch5.setExpression("Constraints[68]", "Params.sketch5_height")
sketch5.setExpression("Constraints[69]", "Params.sketch5_height2")
pad3 = body.newObject("PartDesign::Pad", "Pad002")
pad3.Profile = sketch5
pad3.setExpression("Length", "Params.pad3_length")
pad3.Reversed = True

# Sketch on XY plane
sketch6 = body.newObject("Sketcher::SketchObject", "Sketch005")
sketch6.AttachmentSupport = (doc.getObject("XY_Plane"), [""])
sketch6.MapMode = "FlatFace"
add_polygon(sketch6, [(-62.7, 88), (60.2, 88), (60.2, 85), (-62.7, 85)])  # lines 0-3
sketch6.addConstraint([
    Sketcher.Constraint("Horizontal", 0),
    Sketcher.Constraint("Vertical", 1),
    Sketcher.Constraint("Horizontal", 2),
    Sketcher.Constraint("Vertical", 3),
    Sketcher.Constraint("DistanceY", 1, 2, 1, 1, 3.0),
    Sketcher.Constraint("DistanceX", 0, 1, 0, 2, 122.9),
    Sketcher.Constraint("DistanceY", -1, 1, 0, 2, 88.0),
    Sketcher.Constraint("DistanceX", -1, 1, 0, 2, 60.2),
])
sketch6.setExpression("Constraints[8]", "Params.sketch6_height")
sketch6.setExpression("Constraints[9]", "Params.sketch6_width")
pocket3 = body.newObject("PartDesign::Pocket", "Pocket002")
pocket3.Profile = sketch6
pocket3.setExpression("Length", "Params.pocket3_length")
pocket3.Reversed = True

# Sketch on XY plane
sketch7 = body.newObject("Sketcher::SketchObject", "Sketch006")
sketch7.AttachmentSupport = (doc.getObject("XY_Plane"), [""])
sketch7.MapMode = "FlatFace"
sketch7.AttachmentOffset = App.Placement(Vector(0, 0, 3), App.Rotation())
add_polygon(sketch7, [(100, -65), (-75, -65), (-75, -72.5), (-78, -72.5), (-78, -75), (103, -75), (103, -72.5), (100, -72.5)])  # lines 0-7
sketch7.addConstraint([
    Sketcher.Constraint("Horizontal", 0),
    Sketcher.Constraint("Vertical", 1),
    Sketcher.Constraint("Horizontal", 2),
    Sketcher.Constraint("Vertical", 3),
    Sketcher.Constraint("Horizontal", 4),
    Sketcher.Constraint("Vertical", 5),
    Sketcher.Constraint("Horizontal", 6),
    Sketcher.Constraint("Vertical", 7),
    Sketcher.Constraint("Horizontal", 2, 2, 5, 2),
    Sketcher.Constraint("Equal", 2, 6),
    Sketcher.Constraint("DistanceX", 0, 2, 0, 1, 175.0),
    Sketcher.Constraint("DistanceX", 2, 2, 2, 1, 3.0),
    Sketcher.Constraint("DistanceY", 3, 2, 3, 1, 2.5),
    Sketcher.Constraint("DistanceY", 3, 2, 0, 2, 10.0),
    Sketcher.Constraint("DistanceX", 0, 2, -1, 1, 75.0),
    Sketcher.Constraint("DistanceY", 0, 2, -1, 1, 65.0),
])
sketch7.setExpression("Constraints[18]", "Params.sketch7_width")
sketch7.setExpression("Constraints[19]", "Params.sketch7_width2")
sketch7.setExpression("Constraints[20]", "Params.sketch7_height")
pad4 = body.newObject("PartDesign::Pad", "Pad003")
pad4.Profile = sketch7
pad4.setExpression("Length", "Params.pad4_length")
pad4.Reversed = True

# Sketch on XY plane
sketch8 = body.newObject("Sketcher::SketchObject", "Sketch007")
sketch8.AttachmentSupport = (doc.getObject("XY_Plane"), [""])
sketch8.MapMode = "FlatFace"
sketch8.addGeometry([
    Part.Circle(Vector(32.05, -65.5, 0), Vector(0, 0, 1), 1.75),
    Part.Circle(Vector(32.05, -37.5, 0), Vector(0, 0, 1), 1.75),
    Part.Circle(Vector(83.75, -22.5, 0), Vector(0, 0, 1), 1.75),
    Part.Circle(Vector(83.75, -70.5, 0), Vector(0, 0, 1), 1.75),
], False)
sketch8.addConstraint([
    Sketcher.Constraint("Equal", 0, 1),
    Sketcher.Constraint("Equal", 1, 2),
    Sketcher.Constraint("Equal", 2, 3),
    Sketcher.Constraint("Vertical", 0, 3, 1, 3),
    Sketcher.Constraint("Vertical", 2, 3, 3, 3),
    Sketcher.Constraint("Diameter", 0, 3.5),
    Sketcher.Constraint("DistanceY", 0, 3, 1, 3, 28.0),
    Sketcher.Constraint("DistanceY", 1, 3, 2, 3, 15.0),
    Sketcher.Constraint("DistanceY", 3, 3, 2, 3, 48.0),
    Sketcher.Constraint("DistanceY", 0, 3, -1, 1, 65.5),
    Sketcher.Constraint("DistanceX", 1, 3, 2, 3, 51.7),
    Sketcher.Constraint("DistanceX", -1, 1, 0, 3, 32.05),
])
sketch8.setExpression("Constraints[5]", "Params.sketch8_diameter")
pocket4 = body.newObject("PartDesign::Pocket", "Pocket003")
pocket4.Profile = sketch8
pocket4.setExpression("Length", "Params.pocket4_length")
pocket4.Reversed = True

doc.recompute()
